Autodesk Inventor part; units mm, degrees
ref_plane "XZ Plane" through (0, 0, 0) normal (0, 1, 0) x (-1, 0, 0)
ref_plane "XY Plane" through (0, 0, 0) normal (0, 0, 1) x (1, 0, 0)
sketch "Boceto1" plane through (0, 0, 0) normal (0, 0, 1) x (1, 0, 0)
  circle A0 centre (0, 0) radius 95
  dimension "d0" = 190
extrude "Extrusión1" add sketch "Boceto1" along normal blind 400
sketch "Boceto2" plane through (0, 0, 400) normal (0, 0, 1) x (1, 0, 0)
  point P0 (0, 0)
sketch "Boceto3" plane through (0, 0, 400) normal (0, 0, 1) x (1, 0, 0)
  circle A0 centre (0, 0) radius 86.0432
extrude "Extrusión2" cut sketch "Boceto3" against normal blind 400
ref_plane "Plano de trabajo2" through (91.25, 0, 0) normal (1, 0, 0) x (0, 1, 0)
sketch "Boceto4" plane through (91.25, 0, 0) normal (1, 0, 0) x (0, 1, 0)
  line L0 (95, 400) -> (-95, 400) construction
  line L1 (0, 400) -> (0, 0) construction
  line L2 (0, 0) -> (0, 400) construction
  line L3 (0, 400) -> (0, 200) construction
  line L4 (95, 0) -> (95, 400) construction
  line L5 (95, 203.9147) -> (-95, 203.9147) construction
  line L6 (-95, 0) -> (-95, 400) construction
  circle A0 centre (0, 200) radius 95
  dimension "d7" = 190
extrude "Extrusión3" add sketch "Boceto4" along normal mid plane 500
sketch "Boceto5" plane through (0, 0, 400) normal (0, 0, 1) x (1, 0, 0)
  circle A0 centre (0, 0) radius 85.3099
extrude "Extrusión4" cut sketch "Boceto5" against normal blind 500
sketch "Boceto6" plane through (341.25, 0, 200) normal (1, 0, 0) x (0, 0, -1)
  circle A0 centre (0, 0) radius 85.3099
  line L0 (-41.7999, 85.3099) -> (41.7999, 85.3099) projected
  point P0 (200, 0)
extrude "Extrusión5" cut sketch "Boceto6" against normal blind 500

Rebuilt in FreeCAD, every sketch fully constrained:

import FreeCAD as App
import Part
import Sketcher

doc = App.newDocument("Part")
body = doc.addObject("PartDesign::Body", "Body")

sketch1 = body.newObject("Sketcher::SketchObject", "Sketch")
sketch1.AttachmentSupport = (doc.getObject("XY_Plane"), [""])
sketch1.MapMode = "FlatFace"
sketch1.addGeometry(Part.Circle(App.Vector(0, 0, 0), App.Vector(0, 0, 1), 95), False)
sketch1.addConstraint(Sketcher.Constraint("Coincident", 0, 3, -1, 1))
sketch1.addConstraint(Sketcher.Constraint("Diameter", 0, 190.0))
pad1 = body.newObject("PartDesign::Pad", "Pad")
pad1.Profile = sketch1
pad1.Length = 400

sketch2 = body.newObject("Sketcher::SketchObject", "Sketch001")
sketch2.AttachmentSupport = (doc.getObject("XY_Plane"), [""])
sketch2.MapMode = "FlatFace"
sketch2.AttachmentOffset = App.Placement(App.Vector(0, 0, 400), App.Rotation())
sketch2.addGeometry(Part.Circle(App.Vector(0, 0, 0), App.Vector(0, 0, 1), 86), False)
sketch2.addConstraint(Sketcher.Constraint("Coincident", 0, 3, -1, 1))
sketch2.addConstraint(Sketcher.Constraint("Diameter", 0, 172.0864))
pocket1 = body.newObject("PartDesign::Pocket", "Pocket")
pocket1.Profile = sketch2
pocket1.Length = 400

sketch3 = body.newObject("Sketcher::SketchObject", "Sketch002")
sketch3.AttachmentSupport = (doc.getObject("YZ_Plane"), [""])
sketch3.MapMode = "FlatFace"
sketch3.AttachmentOffset = App.Placement(App.Vector(0, 0, 91.25), App.Rotation())
sketch3.addGeometry(Part.Circle(App.Vector(0, 200, 0), App.Vector(0, 0, 1), 95), False)
sketch3.addConstraint(Sketcher.Constraint("PointOnObject", 0, 3, -2))
sketch3.addConstraint(Sketcher.Constraint("Diameter", 0, 190.0))
sketch3.addConstraint(Sketcher.Constraint("DistanceY", -1, 1, 0, 3, 200.0))
pad2 = body.newObject("PartDesign::Pad", "Pad001")
pad2.Profile = sketch3
pad2.Length = 500
pad2.Midplane = True

sketch4 = body.newObject("Sketcher::SketchObject", "Sketch003")
sketch4.AttachmentSupport = (doc.getObject("XY_Plane"), [""])
sketch4.MapMode = "FlatFace"
sketch4.AttachmentOffset = App.Placement(App.Vector(0, 0, 400), App.Rotation())
sketch4.addGeometry(Part.Circle(App.Vector(0, 0, 0), App.Vector(0, 0, 1), 85), False)
sketch4.addConstraint(Sketcher.Constraint("Coincident", 0, 3, -1, 1))
sketch4.addConstraint(Sketcher.Constraint("Diameter", 0, 170.6198))
pocket2 = body.newObject("PartDesign::Pocket", "Pocket001")
pocket2.Profile = sketch4
pocket2.Length = 500

sketch5 = body.newObject("Sketcher::SketchObject", "Sketch004")
sketch5.AttachmentSupport = (doc.getObject("YZ_Plane"), [""])
sketch5.MapMode = "FlatFace"
sketch5.AttachmentOffset = App.Placement(App.Vector(0, 0, 341.25), App.Rotation())
sketch5.addGeometry(Part.Circle(App.Vector(0, 200, 0), App.Vector(0, 0, 1), 85), False)
sketch5.addConstraint(Sketcher.Constraint("PointOnObject", 0, 3, -2))
sketch5.addConstraint(Sketcher.Constraint("DistanceY", -1, 1, 0, 3, 200.0))
sketch5.addConstraint(Sketcher.Constraint("Diameter", 0, 170.6198))
pocket3 = body.newObject("PartDesign::Pocket", "Pocket002")
pocket3.Profile = sketch5
pocket3.Length = 500

doc.recompute()
